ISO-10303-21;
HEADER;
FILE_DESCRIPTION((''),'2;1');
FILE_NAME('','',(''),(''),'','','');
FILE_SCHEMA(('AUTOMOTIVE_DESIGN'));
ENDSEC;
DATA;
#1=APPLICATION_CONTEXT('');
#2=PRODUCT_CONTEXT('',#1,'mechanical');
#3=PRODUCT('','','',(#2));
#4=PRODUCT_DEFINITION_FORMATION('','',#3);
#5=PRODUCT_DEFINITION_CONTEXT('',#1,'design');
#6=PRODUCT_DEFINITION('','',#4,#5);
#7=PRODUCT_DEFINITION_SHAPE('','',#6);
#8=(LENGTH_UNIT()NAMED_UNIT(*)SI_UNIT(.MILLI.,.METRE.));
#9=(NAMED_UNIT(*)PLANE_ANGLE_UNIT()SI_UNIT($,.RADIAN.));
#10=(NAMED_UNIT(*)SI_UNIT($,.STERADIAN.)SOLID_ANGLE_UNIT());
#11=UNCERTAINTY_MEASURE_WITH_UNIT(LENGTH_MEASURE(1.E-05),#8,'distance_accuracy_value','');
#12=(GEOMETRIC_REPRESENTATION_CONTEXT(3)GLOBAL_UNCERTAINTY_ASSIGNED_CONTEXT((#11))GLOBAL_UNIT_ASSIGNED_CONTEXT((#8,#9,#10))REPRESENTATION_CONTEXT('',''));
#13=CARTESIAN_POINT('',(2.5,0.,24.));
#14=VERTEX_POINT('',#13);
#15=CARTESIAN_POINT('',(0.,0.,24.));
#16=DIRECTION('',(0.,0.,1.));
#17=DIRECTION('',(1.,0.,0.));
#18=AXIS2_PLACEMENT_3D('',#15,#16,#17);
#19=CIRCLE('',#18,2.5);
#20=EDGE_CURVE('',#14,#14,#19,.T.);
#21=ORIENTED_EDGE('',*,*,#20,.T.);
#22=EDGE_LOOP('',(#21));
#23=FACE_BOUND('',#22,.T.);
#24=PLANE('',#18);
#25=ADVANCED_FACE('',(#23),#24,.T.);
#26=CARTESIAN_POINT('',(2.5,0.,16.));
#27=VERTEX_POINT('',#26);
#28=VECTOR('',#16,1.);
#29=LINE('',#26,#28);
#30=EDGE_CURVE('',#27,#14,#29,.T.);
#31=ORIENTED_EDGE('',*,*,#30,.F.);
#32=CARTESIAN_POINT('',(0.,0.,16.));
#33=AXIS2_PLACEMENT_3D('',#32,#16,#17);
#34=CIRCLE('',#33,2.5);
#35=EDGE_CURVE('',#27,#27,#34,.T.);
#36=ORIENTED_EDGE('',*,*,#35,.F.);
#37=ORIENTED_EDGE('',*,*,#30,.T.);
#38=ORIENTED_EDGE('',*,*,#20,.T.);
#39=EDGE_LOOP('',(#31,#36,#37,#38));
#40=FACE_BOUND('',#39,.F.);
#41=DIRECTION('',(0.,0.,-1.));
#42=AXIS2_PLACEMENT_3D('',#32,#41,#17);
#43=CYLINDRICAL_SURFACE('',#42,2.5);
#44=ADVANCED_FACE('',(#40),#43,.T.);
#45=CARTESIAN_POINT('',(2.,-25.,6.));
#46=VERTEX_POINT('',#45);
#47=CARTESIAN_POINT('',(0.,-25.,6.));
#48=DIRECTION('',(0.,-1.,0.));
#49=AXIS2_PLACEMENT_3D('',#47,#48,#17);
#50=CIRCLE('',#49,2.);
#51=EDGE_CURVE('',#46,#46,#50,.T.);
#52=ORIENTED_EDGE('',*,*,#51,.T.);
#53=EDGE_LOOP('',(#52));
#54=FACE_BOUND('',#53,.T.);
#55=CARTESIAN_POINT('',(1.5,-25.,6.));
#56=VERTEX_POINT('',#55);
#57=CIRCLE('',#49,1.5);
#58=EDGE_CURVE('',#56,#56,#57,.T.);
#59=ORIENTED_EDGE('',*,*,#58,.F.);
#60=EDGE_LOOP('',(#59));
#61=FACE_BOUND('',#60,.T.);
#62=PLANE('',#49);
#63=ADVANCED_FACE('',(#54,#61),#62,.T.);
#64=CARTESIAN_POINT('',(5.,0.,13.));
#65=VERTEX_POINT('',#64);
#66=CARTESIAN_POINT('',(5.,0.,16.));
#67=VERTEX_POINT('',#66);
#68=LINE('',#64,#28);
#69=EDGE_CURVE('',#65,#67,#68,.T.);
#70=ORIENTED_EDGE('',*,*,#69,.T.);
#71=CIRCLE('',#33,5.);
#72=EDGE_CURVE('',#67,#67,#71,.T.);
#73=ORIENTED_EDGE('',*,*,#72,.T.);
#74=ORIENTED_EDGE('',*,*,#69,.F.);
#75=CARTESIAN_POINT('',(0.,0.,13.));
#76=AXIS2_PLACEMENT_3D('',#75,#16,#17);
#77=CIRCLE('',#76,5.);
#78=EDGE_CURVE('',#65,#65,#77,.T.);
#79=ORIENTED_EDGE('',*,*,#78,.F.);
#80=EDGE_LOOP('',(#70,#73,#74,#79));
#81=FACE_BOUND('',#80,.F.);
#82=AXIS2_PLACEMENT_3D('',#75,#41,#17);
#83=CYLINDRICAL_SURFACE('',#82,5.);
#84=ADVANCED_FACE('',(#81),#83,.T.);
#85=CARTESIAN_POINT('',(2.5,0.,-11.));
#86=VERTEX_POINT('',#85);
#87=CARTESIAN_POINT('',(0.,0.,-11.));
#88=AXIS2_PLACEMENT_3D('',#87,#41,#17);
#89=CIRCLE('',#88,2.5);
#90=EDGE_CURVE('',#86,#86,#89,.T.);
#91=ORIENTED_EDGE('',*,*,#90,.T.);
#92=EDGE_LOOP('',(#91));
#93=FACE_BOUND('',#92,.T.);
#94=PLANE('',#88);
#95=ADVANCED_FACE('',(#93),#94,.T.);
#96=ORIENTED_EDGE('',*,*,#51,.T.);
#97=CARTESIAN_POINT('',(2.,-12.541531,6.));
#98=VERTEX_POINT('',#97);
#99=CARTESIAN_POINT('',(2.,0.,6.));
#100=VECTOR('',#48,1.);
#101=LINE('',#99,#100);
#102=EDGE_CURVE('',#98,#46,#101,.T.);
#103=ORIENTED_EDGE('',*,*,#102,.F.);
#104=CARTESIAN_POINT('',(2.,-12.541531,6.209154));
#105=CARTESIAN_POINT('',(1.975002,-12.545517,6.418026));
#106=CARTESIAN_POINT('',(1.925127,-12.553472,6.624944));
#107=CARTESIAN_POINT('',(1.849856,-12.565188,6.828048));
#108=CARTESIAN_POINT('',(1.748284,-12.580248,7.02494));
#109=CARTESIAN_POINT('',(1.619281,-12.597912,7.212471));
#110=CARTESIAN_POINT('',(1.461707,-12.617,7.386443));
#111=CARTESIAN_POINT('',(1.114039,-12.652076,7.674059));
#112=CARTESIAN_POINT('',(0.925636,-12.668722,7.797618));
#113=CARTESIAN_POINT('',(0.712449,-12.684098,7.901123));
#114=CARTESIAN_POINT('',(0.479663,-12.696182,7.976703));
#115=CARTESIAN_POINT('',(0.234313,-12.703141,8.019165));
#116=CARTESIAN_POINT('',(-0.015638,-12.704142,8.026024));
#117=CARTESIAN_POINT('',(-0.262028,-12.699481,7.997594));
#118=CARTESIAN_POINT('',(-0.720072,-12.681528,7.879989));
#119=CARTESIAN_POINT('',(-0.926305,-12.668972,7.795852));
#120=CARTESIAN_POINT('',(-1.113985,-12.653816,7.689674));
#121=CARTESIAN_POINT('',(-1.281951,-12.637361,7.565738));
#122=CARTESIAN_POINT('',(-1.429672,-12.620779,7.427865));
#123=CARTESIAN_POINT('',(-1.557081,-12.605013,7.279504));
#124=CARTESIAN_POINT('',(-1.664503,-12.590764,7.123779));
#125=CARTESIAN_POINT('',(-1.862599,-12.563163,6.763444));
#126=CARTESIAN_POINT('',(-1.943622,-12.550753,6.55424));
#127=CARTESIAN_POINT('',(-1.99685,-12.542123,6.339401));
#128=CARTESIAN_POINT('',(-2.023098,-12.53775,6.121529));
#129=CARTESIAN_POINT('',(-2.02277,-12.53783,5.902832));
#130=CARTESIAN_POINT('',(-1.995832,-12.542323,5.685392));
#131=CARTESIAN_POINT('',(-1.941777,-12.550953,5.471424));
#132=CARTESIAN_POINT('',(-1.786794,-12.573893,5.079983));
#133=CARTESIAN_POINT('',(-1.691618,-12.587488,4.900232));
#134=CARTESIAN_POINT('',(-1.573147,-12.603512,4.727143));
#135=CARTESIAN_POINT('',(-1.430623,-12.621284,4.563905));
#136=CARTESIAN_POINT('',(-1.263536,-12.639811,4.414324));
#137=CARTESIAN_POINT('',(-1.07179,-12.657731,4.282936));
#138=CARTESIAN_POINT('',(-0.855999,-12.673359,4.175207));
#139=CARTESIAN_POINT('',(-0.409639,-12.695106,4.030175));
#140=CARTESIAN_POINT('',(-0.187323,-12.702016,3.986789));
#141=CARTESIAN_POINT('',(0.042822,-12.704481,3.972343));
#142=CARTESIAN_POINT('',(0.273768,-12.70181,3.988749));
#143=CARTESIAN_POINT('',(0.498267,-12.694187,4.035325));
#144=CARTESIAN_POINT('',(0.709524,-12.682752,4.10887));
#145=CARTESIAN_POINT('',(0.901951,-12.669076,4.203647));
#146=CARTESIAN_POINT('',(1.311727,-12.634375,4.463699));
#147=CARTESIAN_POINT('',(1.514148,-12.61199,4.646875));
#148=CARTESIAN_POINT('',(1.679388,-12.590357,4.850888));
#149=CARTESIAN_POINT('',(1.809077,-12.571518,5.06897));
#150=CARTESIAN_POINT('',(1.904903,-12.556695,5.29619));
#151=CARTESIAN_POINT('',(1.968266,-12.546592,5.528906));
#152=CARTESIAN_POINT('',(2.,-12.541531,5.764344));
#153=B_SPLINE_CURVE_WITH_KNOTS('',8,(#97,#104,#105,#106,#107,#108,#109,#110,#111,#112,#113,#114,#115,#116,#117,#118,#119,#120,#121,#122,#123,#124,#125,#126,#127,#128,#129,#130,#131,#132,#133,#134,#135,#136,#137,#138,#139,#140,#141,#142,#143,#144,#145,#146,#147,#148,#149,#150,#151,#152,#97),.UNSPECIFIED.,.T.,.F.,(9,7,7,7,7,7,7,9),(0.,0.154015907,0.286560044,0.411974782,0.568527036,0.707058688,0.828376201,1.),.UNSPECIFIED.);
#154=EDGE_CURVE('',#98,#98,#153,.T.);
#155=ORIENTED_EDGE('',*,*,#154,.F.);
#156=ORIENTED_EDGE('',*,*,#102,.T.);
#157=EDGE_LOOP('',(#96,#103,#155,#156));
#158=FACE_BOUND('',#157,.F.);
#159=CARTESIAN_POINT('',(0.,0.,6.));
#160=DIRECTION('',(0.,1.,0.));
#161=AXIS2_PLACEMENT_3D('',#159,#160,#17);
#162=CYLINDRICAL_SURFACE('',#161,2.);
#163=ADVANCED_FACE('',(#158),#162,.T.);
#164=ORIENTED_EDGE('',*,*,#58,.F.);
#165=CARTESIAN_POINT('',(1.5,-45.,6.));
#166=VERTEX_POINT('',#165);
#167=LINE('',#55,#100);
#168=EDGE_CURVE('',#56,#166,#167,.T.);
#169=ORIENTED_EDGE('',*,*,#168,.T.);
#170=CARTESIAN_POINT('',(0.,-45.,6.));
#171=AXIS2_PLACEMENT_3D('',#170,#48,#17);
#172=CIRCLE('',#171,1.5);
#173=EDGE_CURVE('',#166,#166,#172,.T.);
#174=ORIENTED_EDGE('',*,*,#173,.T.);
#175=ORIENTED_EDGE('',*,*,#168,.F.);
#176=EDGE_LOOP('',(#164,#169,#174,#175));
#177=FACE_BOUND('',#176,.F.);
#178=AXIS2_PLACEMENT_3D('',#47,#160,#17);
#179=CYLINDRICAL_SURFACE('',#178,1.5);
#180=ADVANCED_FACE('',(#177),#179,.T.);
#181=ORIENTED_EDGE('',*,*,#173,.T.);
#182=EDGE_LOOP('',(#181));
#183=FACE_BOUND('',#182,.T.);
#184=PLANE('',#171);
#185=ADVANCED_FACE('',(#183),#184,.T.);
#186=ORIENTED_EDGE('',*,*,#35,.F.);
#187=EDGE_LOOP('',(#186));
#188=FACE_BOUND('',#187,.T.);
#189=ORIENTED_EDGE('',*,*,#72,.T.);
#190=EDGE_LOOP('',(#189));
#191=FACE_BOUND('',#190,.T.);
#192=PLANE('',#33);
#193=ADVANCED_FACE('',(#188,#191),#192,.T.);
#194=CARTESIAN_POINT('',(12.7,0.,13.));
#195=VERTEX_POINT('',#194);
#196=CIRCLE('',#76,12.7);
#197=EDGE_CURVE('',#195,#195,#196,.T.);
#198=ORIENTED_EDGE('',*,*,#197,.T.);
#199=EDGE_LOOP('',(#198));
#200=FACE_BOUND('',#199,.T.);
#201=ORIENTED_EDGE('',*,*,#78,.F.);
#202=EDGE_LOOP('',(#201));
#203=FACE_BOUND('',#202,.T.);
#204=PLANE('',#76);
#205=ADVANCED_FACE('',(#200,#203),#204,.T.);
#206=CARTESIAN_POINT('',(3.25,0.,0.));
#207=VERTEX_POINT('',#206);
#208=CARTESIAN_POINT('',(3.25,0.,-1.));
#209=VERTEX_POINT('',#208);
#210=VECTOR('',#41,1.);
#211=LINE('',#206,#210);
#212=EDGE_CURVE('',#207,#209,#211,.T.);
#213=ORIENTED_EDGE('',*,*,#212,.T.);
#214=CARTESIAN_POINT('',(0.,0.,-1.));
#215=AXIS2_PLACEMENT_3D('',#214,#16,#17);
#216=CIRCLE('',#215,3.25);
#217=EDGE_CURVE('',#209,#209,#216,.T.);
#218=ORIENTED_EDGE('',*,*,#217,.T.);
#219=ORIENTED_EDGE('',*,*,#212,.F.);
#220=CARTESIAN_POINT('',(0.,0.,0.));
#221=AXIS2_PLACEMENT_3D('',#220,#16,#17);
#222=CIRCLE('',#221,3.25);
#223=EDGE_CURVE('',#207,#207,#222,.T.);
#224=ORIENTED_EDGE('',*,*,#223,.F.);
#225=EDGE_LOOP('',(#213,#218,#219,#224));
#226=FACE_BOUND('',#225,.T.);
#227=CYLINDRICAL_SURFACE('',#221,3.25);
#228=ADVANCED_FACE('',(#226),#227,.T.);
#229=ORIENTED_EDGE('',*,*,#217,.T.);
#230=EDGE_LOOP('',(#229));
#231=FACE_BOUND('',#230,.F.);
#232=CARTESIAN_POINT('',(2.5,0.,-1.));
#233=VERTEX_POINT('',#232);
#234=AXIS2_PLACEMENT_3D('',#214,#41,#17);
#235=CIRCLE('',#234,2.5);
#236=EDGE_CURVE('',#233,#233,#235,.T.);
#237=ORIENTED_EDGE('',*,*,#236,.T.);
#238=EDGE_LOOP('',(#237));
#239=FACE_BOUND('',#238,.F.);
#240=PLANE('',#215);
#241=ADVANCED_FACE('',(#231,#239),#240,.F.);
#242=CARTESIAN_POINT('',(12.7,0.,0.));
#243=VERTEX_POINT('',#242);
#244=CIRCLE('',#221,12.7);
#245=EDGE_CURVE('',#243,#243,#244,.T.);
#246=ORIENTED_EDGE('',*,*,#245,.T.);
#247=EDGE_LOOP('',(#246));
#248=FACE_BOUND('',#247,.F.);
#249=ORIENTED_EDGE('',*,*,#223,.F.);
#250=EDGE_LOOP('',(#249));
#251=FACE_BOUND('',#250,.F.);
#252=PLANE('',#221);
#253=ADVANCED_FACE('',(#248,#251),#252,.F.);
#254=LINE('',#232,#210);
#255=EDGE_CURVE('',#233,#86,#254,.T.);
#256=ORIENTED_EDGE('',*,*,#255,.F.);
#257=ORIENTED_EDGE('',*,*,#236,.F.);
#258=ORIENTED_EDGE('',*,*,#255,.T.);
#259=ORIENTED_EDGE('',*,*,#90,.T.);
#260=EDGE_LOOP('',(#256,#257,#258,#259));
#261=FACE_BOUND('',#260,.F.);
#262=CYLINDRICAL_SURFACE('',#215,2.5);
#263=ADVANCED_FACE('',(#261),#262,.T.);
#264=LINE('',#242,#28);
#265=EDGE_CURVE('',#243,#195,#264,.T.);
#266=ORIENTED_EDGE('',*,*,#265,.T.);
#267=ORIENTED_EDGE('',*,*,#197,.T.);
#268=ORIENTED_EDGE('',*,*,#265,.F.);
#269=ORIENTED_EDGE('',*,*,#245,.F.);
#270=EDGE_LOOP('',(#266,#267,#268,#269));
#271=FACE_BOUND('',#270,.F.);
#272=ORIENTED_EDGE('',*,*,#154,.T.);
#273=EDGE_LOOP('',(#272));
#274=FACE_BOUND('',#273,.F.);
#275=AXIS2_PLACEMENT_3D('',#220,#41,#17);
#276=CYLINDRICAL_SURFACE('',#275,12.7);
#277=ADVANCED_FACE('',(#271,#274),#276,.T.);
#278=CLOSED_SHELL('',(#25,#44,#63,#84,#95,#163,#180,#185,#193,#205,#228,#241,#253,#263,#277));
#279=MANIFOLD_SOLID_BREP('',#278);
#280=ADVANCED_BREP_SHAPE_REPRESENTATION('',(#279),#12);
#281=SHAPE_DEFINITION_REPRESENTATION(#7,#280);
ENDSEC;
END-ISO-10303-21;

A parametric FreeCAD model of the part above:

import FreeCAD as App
import Part
import Sketcher
from FreeCAD import Vector
Q = App.Units.Quantity

doc = App.newDocument("Part")
body = doc.addObject("PartDesign::Body", "Body")

sketch1 = body.newObject("Sketcher::SketchObject", "Sketch")
sketch1.AttachmentSupport = (doc.getObject("XY_Plane"), [""])
sketch1.MapMode = "FlatFace"
sketch1.addGeometry(Part.Circle(Vector(0, 0, 0), Vector(0, 0, 1), 13), False)
sketch1.addConstraint([
    Sketcher.Constraint("Coincident", 0, 3, -1, 1),
    Sketcher.Constraint("Diameter", 0, Q("25.4 mm")),
])
pad1 = body.newObject("PartDesign::Pad", "Pad")
pad1.Profile = sketch1
pad1.Length = 13

sketch2 = body.newObject("Sketcher::SketchObject", "Sketch001")
sketch2.AttachmentSupport = (doc.getObject("XY_Plane"), [""])
sketch2.MapMode = "FlatFace"
sketch2.AttachmentOffset = App.Placement(Vector(0, 0, 13), App.Rotation())
sketch2.addGeometry(Part.Circle(Vector(0, 0, 0), Vector(0, 0, 1), 5), False)
sketch2.addConstraint([
    Sketcher.Constraint("Coincident", 0, 3, -1, 1),
    Sketcher.Constraint("Diameter", 0, Q("10 mm")),
])
pad2 = body.newObject("PartDesign::Pad", "Pad001")
pad2.Profile = sketch2
pad2.Length = 3

sketch3 = body.newObject("Sketcher::SketchObject", "Sketch002")
sketch3.AttachmentSupport = (doc.getObject("XY_Plane"), [""])
sketch3.MapMode = "FlatFace"
sketch3.AttachmentOffset = App.Placement(Vector(0, 0, 16), App.Rotation())
sketch3.addGeometry(Part.Circle(Vector(0, 0, 0), Vector(0, 0, 1), 2.5), False)
sketch3.addConstraint([
    Sketcher.Constraint("Coincident", 0, 3, -1, 1),
    Sketcher.Constraint("Diameter", 0, Q("5 mm")),
])
pad3 = body.newObject("PartDesign::Pad", "Pad002")
pad3.Profile = sketch3
pad3.Length = 8

sketch4 = body.newObject("Sketcher::SketchObject", "Sketch003")
sketch4.AttachmentSupport = (doc.getObject("XY_Plane"), [""])
sketch4.MapMode = "FlatFace"
sketch4.addGeometry(Part.Circle(Vector(0, 0, 0), Vector(0, 0, 1), 3.2), False)
sketch4.addConstraint([
    Sketcher.Constraint("Coincident", 0, 3, -1, 1),
    Sketcher.Constraint("Diameter", 0, Q("6.5 mm")),
])
pad4 = body.newObject("PartDesign::Pad", "Pad003")
pad4.Profile = sketch4
pad4.Length = 1
pad4.Reversed = True

sketch5 = body.newObject("Sketcher::SketchObject", "Sketch004")
sketch5.AttachmentSupport = (doc.getObject("XY_Plane"), [""])
sketch5.MapMode = "FlatFace"
sketch5.AttachmentOffset = App.Placement(Vector(0, 0, -1), App.Rotation())
sketch5.addGeometry(Part.Circle(Vector(0, 0, 0), Vector(0, 0, 1), 2.5), False)
sketch5.addConstraint([
    Sketcher.Constraint("Coincident", 0, 3, -1, 1),
    Sketcher.Constraint("Diameter", 0, Q("5 mm")),
])
pad5 = body.newObject("PartDesign::Pad", "Pad004")
pad5.Profile = sketch5
pad5.Length = 10
pad5.Reversed = True

sketch6 = body.newObject("Sketcher::SketchObject", "Sketch005")
sketch6.AttachmentSupport = (doc.getObject("XZ_Plane"), [""])
sketch6.MapMode = "FlatFace"
sketch6.addGeometry(Part.Circle(Vector(0, 6, 0), Vector(0, 0, 1), 2), False)
sketch6.addConstraint([
    Sketcher.Constraint("PointOnObject", 0, 3, -2),
    Sketcher.Constraint("Diameter", 0, Q("4 mm")),
    Sketcher.Constraint("DistanceY", -1, 1, 0, 3, Q("6 mm")),
])
pad6 = body.newObject("PartDesign::Pad", "Pad005")
pad6.Profile = sketch6
pad6.Length = 25

sketch7 = body.newObject("Sketcher::SketchObject", "Sketch006")
sketch7.AttachmentSupport = (doc.getObject("XZ_Plane"), [""])
sketch7.MapMode = "FlatFace"
sketch7.AttachmentOffset = App.Placement(Vector(0, 0, 25), App.Rotation())
sketch7.addGeometry(Part.Circle(Vector(0, 6, 0), Vector(0, 0, 1), 1.5), False)
sketch7.addConstraint([
    Sketcher.Constraint("PointOnObject", 0, 3, -2),
    Sketcher.Constraint("Diameter", 0, Q("3 mm")),
    Sketcher.Constraint("DistanceY", -1, 1, 0, 3, Q("6 mm")),
])
pad7 = body.newObject("PartDesign::Pad", "Pad006")
pad7.Profile = sketch7
pad7.Length = 20

doc.recompute()
